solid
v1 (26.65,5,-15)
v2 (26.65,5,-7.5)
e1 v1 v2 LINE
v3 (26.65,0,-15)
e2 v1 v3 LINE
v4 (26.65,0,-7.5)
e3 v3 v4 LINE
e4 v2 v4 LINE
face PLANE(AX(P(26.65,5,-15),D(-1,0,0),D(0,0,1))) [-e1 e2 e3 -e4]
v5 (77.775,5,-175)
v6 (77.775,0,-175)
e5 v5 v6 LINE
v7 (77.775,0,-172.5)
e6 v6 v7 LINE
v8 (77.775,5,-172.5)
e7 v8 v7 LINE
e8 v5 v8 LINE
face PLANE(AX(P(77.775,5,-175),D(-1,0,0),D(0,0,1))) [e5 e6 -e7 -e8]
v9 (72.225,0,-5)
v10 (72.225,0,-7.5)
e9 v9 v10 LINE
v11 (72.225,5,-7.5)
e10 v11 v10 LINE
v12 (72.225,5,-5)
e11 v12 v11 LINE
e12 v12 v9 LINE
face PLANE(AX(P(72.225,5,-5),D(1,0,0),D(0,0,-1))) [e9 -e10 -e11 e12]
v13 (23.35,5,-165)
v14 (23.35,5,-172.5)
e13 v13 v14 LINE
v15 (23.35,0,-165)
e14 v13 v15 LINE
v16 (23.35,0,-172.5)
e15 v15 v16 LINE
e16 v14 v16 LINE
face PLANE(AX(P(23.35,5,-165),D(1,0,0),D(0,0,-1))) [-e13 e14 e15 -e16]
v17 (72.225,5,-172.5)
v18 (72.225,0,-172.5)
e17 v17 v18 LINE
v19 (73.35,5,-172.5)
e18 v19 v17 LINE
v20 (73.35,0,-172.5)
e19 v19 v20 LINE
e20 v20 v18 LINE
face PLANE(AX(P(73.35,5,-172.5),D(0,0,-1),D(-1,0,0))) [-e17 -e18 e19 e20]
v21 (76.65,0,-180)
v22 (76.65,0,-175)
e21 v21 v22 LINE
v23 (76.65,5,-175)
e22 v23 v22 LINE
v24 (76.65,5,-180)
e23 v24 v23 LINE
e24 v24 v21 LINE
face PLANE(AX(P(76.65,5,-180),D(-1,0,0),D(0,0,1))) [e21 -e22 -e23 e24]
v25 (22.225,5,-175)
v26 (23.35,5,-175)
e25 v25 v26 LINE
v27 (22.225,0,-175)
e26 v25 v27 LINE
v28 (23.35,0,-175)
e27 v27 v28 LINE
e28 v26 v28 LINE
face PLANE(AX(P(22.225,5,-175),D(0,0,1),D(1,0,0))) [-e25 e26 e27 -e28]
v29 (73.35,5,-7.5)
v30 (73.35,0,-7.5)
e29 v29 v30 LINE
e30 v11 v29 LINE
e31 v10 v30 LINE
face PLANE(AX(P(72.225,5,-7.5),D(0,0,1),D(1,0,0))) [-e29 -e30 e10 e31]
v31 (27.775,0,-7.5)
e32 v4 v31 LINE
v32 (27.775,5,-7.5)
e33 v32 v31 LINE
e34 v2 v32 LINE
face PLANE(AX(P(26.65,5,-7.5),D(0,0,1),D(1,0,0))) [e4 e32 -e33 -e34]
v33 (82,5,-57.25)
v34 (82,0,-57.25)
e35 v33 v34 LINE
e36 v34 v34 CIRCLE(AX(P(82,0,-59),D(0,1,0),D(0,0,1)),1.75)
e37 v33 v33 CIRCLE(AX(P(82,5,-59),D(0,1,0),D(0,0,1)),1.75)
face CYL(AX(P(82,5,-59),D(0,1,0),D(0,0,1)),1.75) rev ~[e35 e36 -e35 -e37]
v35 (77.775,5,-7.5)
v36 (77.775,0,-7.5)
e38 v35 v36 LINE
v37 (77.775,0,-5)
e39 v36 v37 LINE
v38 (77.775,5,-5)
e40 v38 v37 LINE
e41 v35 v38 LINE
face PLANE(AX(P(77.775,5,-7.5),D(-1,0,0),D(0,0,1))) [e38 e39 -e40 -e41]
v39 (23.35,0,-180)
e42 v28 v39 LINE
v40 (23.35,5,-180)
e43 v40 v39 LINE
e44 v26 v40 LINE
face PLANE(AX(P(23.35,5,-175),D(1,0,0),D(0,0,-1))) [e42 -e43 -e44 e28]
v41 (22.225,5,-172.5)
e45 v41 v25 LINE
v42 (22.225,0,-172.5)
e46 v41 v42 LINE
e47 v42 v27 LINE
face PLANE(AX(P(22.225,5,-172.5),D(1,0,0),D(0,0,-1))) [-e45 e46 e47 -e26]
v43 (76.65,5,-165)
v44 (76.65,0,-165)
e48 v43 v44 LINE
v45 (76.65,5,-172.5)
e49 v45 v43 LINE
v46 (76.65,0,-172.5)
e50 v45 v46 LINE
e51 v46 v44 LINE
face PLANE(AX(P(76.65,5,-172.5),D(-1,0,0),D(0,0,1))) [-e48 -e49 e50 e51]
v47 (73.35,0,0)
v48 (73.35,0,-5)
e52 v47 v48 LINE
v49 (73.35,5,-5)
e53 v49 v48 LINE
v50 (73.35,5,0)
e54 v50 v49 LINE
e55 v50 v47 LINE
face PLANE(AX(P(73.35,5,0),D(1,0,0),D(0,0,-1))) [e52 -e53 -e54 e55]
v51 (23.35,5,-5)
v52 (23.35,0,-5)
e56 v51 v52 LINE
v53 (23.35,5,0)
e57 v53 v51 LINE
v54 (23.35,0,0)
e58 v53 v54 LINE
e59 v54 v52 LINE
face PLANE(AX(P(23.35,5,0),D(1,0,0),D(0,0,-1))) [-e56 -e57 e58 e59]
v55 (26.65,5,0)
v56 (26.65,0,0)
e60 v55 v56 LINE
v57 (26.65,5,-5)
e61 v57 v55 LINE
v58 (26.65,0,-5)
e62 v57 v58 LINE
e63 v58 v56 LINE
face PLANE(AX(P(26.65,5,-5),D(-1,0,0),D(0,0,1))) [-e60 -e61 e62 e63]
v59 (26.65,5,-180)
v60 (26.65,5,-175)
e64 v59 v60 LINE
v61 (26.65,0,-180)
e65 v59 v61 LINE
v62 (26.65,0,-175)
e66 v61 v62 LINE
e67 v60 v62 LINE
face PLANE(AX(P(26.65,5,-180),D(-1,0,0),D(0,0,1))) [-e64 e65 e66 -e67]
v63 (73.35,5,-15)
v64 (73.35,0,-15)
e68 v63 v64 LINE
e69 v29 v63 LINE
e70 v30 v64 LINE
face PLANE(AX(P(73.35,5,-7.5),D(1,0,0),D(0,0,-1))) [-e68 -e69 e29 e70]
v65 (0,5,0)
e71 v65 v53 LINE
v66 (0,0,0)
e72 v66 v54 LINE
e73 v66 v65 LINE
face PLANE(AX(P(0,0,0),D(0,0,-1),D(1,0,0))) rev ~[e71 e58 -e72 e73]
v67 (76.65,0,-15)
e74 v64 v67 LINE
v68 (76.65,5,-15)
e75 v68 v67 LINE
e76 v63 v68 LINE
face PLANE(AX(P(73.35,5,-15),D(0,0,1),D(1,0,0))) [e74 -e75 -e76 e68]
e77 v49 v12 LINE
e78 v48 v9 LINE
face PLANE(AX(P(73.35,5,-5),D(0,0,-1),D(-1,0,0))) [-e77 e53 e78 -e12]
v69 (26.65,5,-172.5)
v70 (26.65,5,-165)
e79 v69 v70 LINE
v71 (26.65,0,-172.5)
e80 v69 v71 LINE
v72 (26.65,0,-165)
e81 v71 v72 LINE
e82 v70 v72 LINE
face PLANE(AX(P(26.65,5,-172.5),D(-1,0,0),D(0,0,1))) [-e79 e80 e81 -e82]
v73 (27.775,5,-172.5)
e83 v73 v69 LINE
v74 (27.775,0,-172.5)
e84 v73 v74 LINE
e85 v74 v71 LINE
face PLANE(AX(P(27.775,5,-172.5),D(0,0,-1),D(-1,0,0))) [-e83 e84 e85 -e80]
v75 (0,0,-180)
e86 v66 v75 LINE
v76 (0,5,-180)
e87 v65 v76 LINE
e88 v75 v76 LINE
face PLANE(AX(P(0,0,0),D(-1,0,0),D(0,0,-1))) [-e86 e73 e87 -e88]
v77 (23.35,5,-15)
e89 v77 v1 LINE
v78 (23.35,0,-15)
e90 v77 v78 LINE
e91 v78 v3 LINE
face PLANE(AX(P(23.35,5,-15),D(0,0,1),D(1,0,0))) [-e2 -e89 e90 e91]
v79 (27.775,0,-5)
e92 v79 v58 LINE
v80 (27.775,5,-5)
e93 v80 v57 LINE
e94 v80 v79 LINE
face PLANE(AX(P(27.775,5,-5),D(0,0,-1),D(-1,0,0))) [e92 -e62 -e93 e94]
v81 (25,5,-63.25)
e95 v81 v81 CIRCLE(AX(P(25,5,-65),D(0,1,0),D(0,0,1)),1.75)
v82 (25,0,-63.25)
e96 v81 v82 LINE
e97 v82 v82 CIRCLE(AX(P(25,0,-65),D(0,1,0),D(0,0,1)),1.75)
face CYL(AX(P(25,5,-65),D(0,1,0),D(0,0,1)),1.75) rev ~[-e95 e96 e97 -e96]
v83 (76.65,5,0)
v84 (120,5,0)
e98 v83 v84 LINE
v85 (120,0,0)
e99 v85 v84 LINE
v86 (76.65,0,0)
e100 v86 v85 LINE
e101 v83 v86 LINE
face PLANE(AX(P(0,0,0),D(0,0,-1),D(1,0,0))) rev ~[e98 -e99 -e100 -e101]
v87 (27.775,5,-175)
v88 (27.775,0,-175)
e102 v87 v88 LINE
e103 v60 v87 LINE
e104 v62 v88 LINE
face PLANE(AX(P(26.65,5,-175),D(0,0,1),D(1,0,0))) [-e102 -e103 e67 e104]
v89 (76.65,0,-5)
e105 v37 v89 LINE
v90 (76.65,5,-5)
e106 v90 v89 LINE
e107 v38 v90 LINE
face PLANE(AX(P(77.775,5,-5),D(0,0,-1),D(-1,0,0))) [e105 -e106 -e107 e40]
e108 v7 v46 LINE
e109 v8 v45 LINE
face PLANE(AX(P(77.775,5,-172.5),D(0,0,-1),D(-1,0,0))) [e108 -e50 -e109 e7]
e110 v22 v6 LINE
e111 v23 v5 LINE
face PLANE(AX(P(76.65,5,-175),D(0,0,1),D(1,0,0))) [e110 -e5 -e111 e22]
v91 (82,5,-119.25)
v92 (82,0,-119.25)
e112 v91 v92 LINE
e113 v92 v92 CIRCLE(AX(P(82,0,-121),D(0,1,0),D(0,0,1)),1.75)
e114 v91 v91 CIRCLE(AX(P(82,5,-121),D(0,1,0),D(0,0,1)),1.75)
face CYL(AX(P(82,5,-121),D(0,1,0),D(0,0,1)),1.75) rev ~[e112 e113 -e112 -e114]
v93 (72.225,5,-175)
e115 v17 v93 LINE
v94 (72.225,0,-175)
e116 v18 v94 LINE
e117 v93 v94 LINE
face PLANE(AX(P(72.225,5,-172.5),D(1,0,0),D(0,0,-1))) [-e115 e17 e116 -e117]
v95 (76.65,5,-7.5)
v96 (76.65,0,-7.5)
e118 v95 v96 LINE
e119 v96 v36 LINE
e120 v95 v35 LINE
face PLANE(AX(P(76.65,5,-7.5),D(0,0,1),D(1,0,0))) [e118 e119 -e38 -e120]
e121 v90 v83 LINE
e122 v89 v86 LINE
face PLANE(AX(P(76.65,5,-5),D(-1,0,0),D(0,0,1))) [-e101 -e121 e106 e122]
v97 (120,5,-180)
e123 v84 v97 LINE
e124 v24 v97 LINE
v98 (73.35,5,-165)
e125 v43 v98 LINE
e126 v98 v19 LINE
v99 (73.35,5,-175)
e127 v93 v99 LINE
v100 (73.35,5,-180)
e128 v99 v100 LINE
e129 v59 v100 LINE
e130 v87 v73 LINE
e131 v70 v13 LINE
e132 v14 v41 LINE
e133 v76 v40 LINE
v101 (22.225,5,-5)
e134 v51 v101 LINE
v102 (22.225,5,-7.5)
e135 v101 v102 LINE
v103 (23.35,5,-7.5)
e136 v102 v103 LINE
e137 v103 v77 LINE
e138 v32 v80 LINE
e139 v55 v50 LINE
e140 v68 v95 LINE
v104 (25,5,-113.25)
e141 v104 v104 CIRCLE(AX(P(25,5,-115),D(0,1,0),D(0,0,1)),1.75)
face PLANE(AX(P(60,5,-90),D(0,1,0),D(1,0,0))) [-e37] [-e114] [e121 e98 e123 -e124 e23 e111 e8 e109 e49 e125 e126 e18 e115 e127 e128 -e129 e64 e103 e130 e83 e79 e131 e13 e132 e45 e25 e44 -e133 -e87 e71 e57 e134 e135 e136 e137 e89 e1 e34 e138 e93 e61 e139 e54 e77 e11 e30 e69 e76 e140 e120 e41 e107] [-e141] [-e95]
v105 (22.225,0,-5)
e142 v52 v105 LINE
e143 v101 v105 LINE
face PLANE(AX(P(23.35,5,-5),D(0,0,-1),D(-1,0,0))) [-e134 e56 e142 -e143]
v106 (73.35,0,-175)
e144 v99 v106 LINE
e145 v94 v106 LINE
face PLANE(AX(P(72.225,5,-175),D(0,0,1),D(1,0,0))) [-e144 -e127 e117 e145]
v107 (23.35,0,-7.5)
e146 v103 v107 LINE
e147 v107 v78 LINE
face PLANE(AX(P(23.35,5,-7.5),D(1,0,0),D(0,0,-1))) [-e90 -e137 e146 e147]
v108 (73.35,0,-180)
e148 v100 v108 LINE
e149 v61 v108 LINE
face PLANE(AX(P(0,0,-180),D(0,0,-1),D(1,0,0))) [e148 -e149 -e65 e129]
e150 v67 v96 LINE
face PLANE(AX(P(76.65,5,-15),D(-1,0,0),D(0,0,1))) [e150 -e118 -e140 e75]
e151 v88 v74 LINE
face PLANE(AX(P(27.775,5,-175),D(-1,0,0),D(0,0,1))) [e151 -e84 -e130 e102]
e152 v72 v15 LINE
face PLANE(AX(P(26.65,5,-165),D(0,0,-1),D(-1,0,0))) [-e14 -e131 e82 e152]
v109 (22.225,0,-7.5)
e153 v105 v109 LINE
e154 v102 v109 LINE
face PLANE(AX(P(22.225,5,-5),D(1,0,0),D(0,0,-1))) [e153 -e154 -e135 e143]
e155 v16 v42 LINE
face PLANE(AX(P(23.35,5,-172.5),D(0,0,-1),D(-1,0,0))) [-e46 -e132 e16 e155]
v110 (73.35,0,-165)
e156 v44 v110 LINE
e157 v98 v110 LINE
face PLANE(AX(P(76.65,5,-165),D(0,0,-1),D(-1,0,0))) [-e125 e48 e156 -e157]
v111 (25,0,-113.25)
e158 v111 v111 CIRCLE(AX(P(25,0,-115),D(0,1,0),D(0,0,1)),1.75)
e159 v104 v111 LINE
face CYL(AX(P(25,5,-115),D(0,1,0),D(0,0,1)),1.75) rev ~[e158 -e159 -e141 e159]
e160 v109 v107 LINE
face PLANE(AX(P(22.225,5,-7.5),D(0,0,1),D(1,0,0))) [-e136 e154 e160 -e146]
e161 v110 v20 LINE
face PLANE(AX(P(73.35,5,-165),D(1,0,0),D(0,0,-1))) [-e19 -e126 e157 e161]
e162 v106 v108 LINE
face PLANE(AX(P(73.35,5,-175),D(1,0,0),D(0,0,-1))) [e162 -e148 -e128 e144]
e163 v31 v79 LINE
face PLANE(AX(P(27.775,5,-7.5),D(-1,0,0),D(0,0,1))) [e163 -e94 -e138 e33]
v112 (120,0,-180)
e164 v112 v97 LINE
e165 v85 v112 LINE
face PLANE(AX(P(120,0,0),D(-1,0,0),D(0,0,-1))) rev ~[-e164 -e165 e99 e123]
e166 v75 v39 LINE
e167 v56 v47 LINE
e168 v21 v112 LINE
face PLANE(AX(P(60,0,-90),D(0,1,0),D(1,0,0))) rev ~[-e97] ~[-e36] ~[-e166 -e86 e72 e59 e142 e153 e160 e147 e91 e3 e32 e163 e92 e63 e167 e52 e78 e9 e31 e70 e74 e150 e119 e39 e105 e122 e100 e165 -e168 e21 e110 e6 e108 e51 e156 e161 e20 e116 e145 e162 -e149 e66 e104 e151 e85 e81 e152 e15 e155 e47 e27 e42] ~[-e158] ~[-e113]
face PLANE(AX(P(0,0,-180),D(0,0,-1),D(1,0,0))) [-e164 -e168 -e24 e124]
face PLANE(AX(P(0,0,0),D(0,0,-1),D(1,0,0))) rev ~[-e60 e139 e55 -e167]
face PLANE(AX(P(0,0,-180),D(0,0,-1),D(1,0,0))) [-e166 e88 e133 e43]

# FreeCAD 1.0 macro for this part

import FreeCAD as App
import Part
import Sketcher

V = App.Vector

doc = App.newDocument("Part")
body = doc.addObject("PartDesign::Body", "Body")

sketch1 = body.newObject("Sketcher::SketchObject", "Sketch")
sketch1.AttachmentSupport = (doc.getObject("XZ_Plane"), [""])
sketch1.MapMode = "FlatFace"
sketch1.addGeometry([
    Part.LineSegment(V(0, -180, 0), V(0, 0, 0)),
    Part.LineSegment(V(0, 0, 0), V(120, 0, 0)),
    Part.LineSegment(V(120, 0, 0), V(120, -180, 0)),
    Part.LineSegment(V(120, -180, 0), V(0, -180, 0)),
], False)
sketch1.addConstraint([
    Sketcher.Constraint("Coincident", 0, 2, 1, 1),
    Sketcher.Constraint("Coincident", 1, 2, 2, 1),
    Sketcher.Constraint("Coincident", 2, 2, 3, 1),
    Sketcher.Constraint("Coincident", 3, 2, 0, 1),
    Sketcher.Constraint("Vertical", 0),
    Sketcher.Constraint("Horizontal", 1),
    Sketcher.Constraint("Vertical", 2),
    Sketcher.Constraint("Horizontal", 3),
    Sketcher.Constraint("Coincident", 0, 2, -1, 1),
    Sketcher.Constraint("DistanceX", 1, 1, 1, 2, 120.0),
    Sketcher.Constraint("DistanceY", 0, 1, 0, 2, 180.0),
])
pad1 = body.newObject("PartDesign::Pad", "Pad")
pad1.Profile = sketch1
pad1.Length = 5
pad1.Reversed = True

sketch2 = body.newObject("Sketcher::SketchObject", "Sketch001")
sketch2.AttachmentSupport = (doc.getObject("XZ_Plane"), [""])
sketch2.MapMode = "FlatFace"
sketch2.AttachmentOffset = App.Placement(V(0, 0, -5), App.Rotation())
sketch2.addGeometry([
    Part.LineSegment(V(26.6, -15, 0), V(23.4, -15, 0)),
    Part.LineSegment(V(23.4, -15, 0), V(23.4, -7.5, 0)),
    Part.LineSegment(V(23.4, -7.5, 0), V(22.2, -7.5, 0)),
    Part.LineSegment(V(22.2, -7.5, 0), V(22.2, -5, 0)),
    Part.LineSegment(V(22.2, -5, 0), V(23.4, -5, 0)),
    Part.LineSegment(V(23.4, -5, 0), V(23.4, 0, 0)),
    Part.LineSegment(V(23.4, 0, 0), V(26.6, 0, 0)),
    Part.LineSegment(V(26.6, 0, 0), V(26.6, -5, 0)),
    Part.LineSegment(V(26.6, -5, 0), V(27.8, -5, 0)),
    Part.LineSegment(V(27.8, -5, 0), V(27.8, -7.5, 0)),
    Part.LineSegment(V(27.8, -7.5, 0), V(26.6, -7.5, 0)),
    Part.LineSegment(V(26.6, -7.5, 0), V(26.6, -15, 0)),
    Part.LineSegment(V(76.7, -7.5, 0), V(76.7, -15, 0)),
    Part.LineSegment(V(76.7, -15, 0), V(73.3, -15, 0)),
    Part.LineSegment(V(73.3, -15, 0), V(73.3, -7.5, 0)),
    Part.LineSegment(V(73.3, -7.5, 0), V(72.2, -7.5, 0)),
    Part.LineSegment(V(72.2, -7.5, 0), V(72.2, -5, 0)),
    Part.LineSegment(V(72.2, -5, 0), V(73.3, -5, 0)),
    Part.LineSegment(V(73.3, -5, 0), V(73.3, 0, 0)),
    Part.LineSegment(V(73.3, 0, 0), V(76.7, 0, 0)),
    Part.LineSegment(V(76.7, 0, 0), V(76.7, -5, 0)),
    Part.LineSegment(V(76.7, -5, 0), V(77.8, -5, 0)),
    Part.LineSegment(V(77.8, -5, 0), V(77.8, -7.5, 0)),
    Part.LineSegment(V(77.8, -7.5, 0), V(76.7, -7.5, 0)),
    Part.LineSegment(V(73.3, -165, 0), V(76.7, -165, 0)),
    Part.LineSegment(V(76.7, -165, 0), V(76.7, -172.5, 0)),
    Part.LineSegment(V(76.7, -172.5, 0), V(77.8, -172.5, 0)),
    Part.LineSegment(V(77.8, -172.5, 0), V(77.8, -175, 0)),
    Part.LineSegment(V(77.8, -175, 0), V(76.7, -175, 0)),
    Part.LineSegment(V(76.7, -175, 0), V(76.7, -180, 0)),
    Part.LineSegment(V(76.7, -180, 0), V(73.3, -180, 0)),
    Part.LineSegment(V(73.3, -180, 0), V(73.3, -175, 0)),
    Part.LineSegment(V(73.3, -175, 0), V(72.2, -175, 0)),
    Part.LineSegment(V(72.2, -175, 0), V(72.2, -172.5, 0)),
    Part.LineSegment(V(72.2, -172.5, 0), V(73.3, -172.5, 0)),
    Part.LineSegment(V(73.3, -172.5, 0), V(73.3, -165, 0)),
    Part.LineSegment(V(23.4, -172.5, 0), V(23.4, -165, 0)),
    Part.LineSegment(V(23.4, -165, 0), V(26.6, -165, 0)),
    Part.LineSegment(V(26.6, -165, 0), V(26.6, -172.5, 0)),
    Part.LineSegment(V(26.6, -172.5, 0), V(27.8, -172.5, 0)),
    Part.LineSegment(V(27.8, -172.5, 0), V(27.8, -175, 0)),
    Part.LineSegment(V(27.8, -175, 0), V(26.6, -175, 0)),
    Part.LineSegment(V(26.6, -175, 0), V(26.6, -180, 0)),
    Part.LineSegment(V(26.6, -180, 0), V(23.4, -180, 0)),
    Part.LineSegment(V(23.4, -180, 0), V(23.4, -175, 0)),
    Part.LineSegment(V(23.4, -175, 0), V(22.2, -175, 0)),
    Part.LineSegment(V(22.2, -175, 0), V(22.2, -172.5, 0)),
    Part.LineSegment(V(22.2, -172.5, 0), V(23.4, -172.5, 0)),
], False)
sketch2.addConstraint([
    Sketcher.Constraint("Coincident", 0, 2, 1, 1),
    Sketcher.Constraint("Coincident", 1, 2, 2, 1),
    Sketcher.Constraint("Coincident", 2, 2, 3, 1),
    Sketcher.Constraint("Coincident", 3, 2, 4, 1),
    Sketcher.Constraint("Coincident", 4, 2, 5, 1),
    Sketcher.Constraint("Coincident", 5, 2, 6, 1),
    Sketcher.Constraint("Coincident", 6, 2, 7, 1),
    Sketcher.Constraint("Coincident", 7, 2, 8, 1),
    Sketcher.Constraint("Coincident", 8, 2, 9, 1),
    Sketcher.Constraint("Coincident", 9, 2, 10, 1),
    Sketcher.Constraint("Coincident", 10, 2, 11, 1),
    Sketcher.Constraint("Coincident", 11, 2, 0, 1),
    Sketcher.Constraint("Coincident", 12, 2, 13, 1),
    Sketcher.Constraint("Coincident", 13, 2, 14, 1),
    Sketcher.Constraint("Coincident", 14, 2, 15, 1),
    Sketcher.Constraint("Coincident", 15, 2, 16, 1),
    Sketcher.Constraint("Coincident", 16, 2, 17, 1),
    Sketcher.Constraint("Coincident", 17, 2, 18, 1),
    Sketcher.Constraint("Coincident", 18, 2, 19, 1),
    Sketcher.Constraint("Coincident", 19, 2, 20, 1),
    Sketcher.Constraint("Coincident", 20, 2, 21, 1),
    Sketcher.Constraint("Coincident", 21, 2, 22, 1),
    Sketcher.Constraint("Coincident", 22, 2, 23, 1),
    Sketcher.Constraint("Coincident", 23, 2, 12, 1),
    Sketcher.Constraint("Coincident", 24, 2, 25, 1),
    Sketcher.Constraint("Coincident", 25, 2, 26, 1),
    Sketcher.Constraint("Coincident", 26, 2, 27, 1),
    Sketcher.Constraint("Coincident", 27, 2, 28, 1),
    Sketcher.Constraint("Coincident", 28, 2, 29, 1),
    Sketcher.Constraint("Coincident", 29, 2, 30, 1),
    Sketcher.Constraint("Coincident", 30, 2, 31, 1),
    Sketcher.Constraint("Coincident", 31, 2, 32, 1),
    Sketcher.Constraint("Coincident", 32, 2, 33, 1),
    Sketcher.Constraint("Coincident", 33, 2, 34, 1),
    Sketcher.Constraint("Coincident", 34, 2, 35, 1),
    Sketcher.Constraint("Coincident", 35, 2, 24, 1),
    Sketcher.Constraint("Coincident", 36, 2, 37, 1),
    Sketcher.Constraint("Coincident", 37, 2, 38, 1),
    Sketcher.Constraint("Coincident", 38, 2, 39, 1),
    Sketcher.Constraint("Coincident", 39, 2, 40, 1),
    Sketcher.Constraint("Coincident", 40, 2, 41, 1),
    Sketcher.Constraint("Coincident", 41, 2, 42, 1),
    Sketcher.Constraint("Coincident", 42, 2, 43, 1),
    Sketcher.Constraint("Coincident", 43, 2, 44, 1),
    Sketcher.Constraint("Coincident", 44, 2, 45, 1),
    Sketcher.Constraint("Coincident", 45, 2, 46, 1),
    Sketcher.Constraint("Coincident", 46, 2, 47, 1),
    Sketcher.Constraint("Coincident", 47, 2, 36, 1),
    Sketcher.Constraint("Horizontal", 0),
    Sketcher.Constraint("Vertical", 1),
    Sketcher.Constraint("Horizontal", 2),
    Sketcher.Constraint("Vertical", 3),
    Sketcher.Constraint("Horizontal", 4),
    Sketcher.Constraint("Vertical", 5),
    Sketcher.Constraint("Horizontal", 6),
    Sketcher.Constraint("Vertical", 7),
    Sketcher.Constraint("Horizontal", 8),
    Sketcher.Constraint("Vertical", 9),
    Sketcher.Constraint("Horizontal", 10),
    Sketcher.Constraint("Vertical", 11),
    Sketcher.Constraint("Vertical", 12),
    Sketcher.Constraint("Horizontal", 13),
    Sketcher.Constraint("Vertical", 14),
    Sketcher.Constraint("Horizontal", 15),
    Sketcher.Constraint("Vertical", 16),
    Sketcher.Constraint("Horizontal", 17),
    Sketcher.Constraint("Vertical", 18),
    Sketcher.Constraint("Horizontal", 19),
    Sketcher.Constraint("Vertical", 20),
    Sketcher.Constraint("Horizontal", 21),
    Sketcher.Constraint("Vertical", 22),
    Sketcher.Constraint("Horizontal", 23),
    Sketcher.Constraint("Horizontal", 24),
    Sketcher.Constraint("Vertical", 25),
    Sketcher.Constraint("Horizontal", 26),
    Sketcher.Constraint("Vertical", 27),
    Sketcher.Constraint("Horizontal", 28),
    Sketcher.Constraint("Vertical", 29),
    Sketcher.Constraint("Horizontal", 30),
    Sketcher.Constraint("Vertical", 31),
    Sketcher.Constraint("Horizontal", 32),
    Sketcher.Constraint("Vertical", 33),
    Sketcher.Constraint("Horizontal", 34),
    Sketcher.Constraint("Vertical", 35),
    Sketcher.Constraint("Vertical", 36),
    Sketcher.Constraint("Horizontal", 37),
    Sketcher.Constraint("Vertical", 38),
    Sketcher.Constraint("Horizontal", 39),
    Sketcher.Constraint("Vertical", 40),
    Sketcher.Constraint("Horizontal", 41),
    Sketcher.Constraint("Vertical", 42),
    Sketcher.Constraint("Horizontal", 43),
    Sketcher.Constraint("Vertical", 44),
    Sketcher.Constraint("Horizontal", 45),
    Sketcher.Constraint("Vertical", 46),
    Sketcher.Constraint("Horizontal", 47),
    Sketcher.Constraint("PointOnObject", 5, 2, -1),
    Sketcher.Constraint("PointOnObject", 18, 2, -1),
    Sketcher.Constraint("Horizontal", 4, 2, 7, 2),
    Sketcher.Constraint("Horizontal", 2, 2, 9, 2),
    Sketcher.Constraint("Horizontal", 11, 2, 12, 2),
    Sketcher.Constraint("Horizontal", 10, 2, 14, 2),
    Sketcher.Constraint("Horizontal", 8, 2, 16, 2),
    Sketcher.Constraint("Horizontal", 17, 2, 20, 2),
    Sketcher.Constraint("Horizontal", 15, 2, 22, 2),
    Sketcher.Constraint("Horizontal", 28, 2, 31, 2),
    Sketcher.Constraint("Horizontal", 26, 2, 33, 2),
    Sketcher.Constraint("Horizontal", 35, 2, 36, 2),
    Sketcher.Constraint("Horizontal", 34, 2, 38, 2),
    Sketcher.Constraint("Horizontal", 32, 2, 40, 2),
    Sketcher.Constraint("Horizontal", 30, 2, 42, 2),
    Sketcher.Constraint("Horizontal", 41, 2, 44, 2),
    Sketcher.Constraint("Horizontal", 39, 2, 46, 2),
    Sketcher.Constraint("Vertical", 1, 2, 4, 2),
    Sketcher.Constraint("Vertical", 7, 2, 10, 2),
    Sketcher.Constraint("Vertical", 14, 2, 17, 2),
    Sketcher.Constraint("Vertical", 12, 2, 19, 2),
    Sketcher.Constraint("Vertical", 23, 2, 24, 2),
    Sketcher.Constraint("Vertical", 22, 2, 26, 2),
    Sketcher.Constraint("Vertical", 25, 2, 28, 2),
    Sketcher.Constraint("Vertical", 18, 2, 30, 2),
    Sketcher.Constraint("Vertical", 16, 2, 32, 2),
    Sketcher.Constraint("Vertical", 31, 2, 34, 2),
    Sketcher.Constraint("Vertical", 5, 2, 36, 2),
    Sketcher.Constraint("Vertical", 11, 2, 37, 2),
    Sketcher.Constraint("Vertical", 9, 2, 39, 2),
    Sketcher.Constraint("Vertical", 38, 2, 41, 2),
    Sketcher.Constraint("Vertical", 36, 2, 43, 2),
    Sketcher.Constraint("Vertical", 3, 2, 45, 2),
    Sketcher.Constraint("Equal", 4, 8),
    Sketcher.Constraint("Equal", 6, 13),
    Sketcher.Constraint("Equal", 10, 15),
    Sketcher.Constraint("Equal", 17, 21),
    Sketcher.Constraint("Equal", 14, 25),
    Sketcher.Constraint("Equal", 22, 27),
    Sketcher.Constraint("Equal", 20, 29),
    Sketcher.Constraint("DistanceY", 5, 1, 5, 2, 5.0),
    Sketcher.Constraint("DistanceX", 0, 2, 0, 1, 3.3),
    Sketcher.Constraint("DistanceY", 1, 1, 1, 2, 7.5),
    Sketcher.Constraint("DistanceY", 3, 1, 3, 2, 2.5),
    Sketcher.Constraint("DistanceY", 24, 2, -1, 1, 165.0),
    Sketcher.Constraint("DistanceX", 11, 2, 12, 2, 50.0),
    Sketcher.Constraint("DistanceX", 2, 2, 2, 1, 1.125),
    Sketcher.Constraint("DistanceX", -1, 1, 0, 2, 23.35),
])
pocket1 = body.newObject("PartDesign::Pocket", "Pocket")
pocket1.Profile = sketch2
pocket1.Length = 5
pocket1.Reversed = True

sketch3 = body.newObject("Sketcher::SketchObject", "Sketch002")
sketch3.AttachmentSupport = (doc.getObject("XZ_Plane"), [""])
sketch3.MapMode = "FlatFace"
sketch3.AttachmentOffset = App.Placement(V(0, 0, -5), App.Rotation())
sketch3.addGeometry([
    Part.Circle(V(25, -65, 0), V(0, 0, 1), 1.8),
    Part.Circle(V(82, -59, 0), V(0, 0, 1), 1.8),
    Part.Circle(V(25, -115, 0), V(0, 0, 1), 1.8),
    Part.Circle(V(82, -121, 0), V(0, 0, 1), 1.8),
], False)
sketch3.addConstraint([
    Sketcher.Constraint("Equal", 0, 1),
    Sketcher.Constraint("Equal", 1, 2),
    Sketcher.Constraint("Equal", 2, 3),
    Sketcher.Constraint("Vertical", 0, 3, 2, 3),
    Sketcher.Constraint("Vertical", 1, 3, 3, 3),
    Sketcher.Constraint("Diameter", 0, 3.5),
    Sketcher.Constraint("DistanceX", -1, 1, 0, 3, 25.0),
    Sketcher.Constraint("DistanceY", 0, 3, -1, 1, 65.0),
    Sketcher.Constraint("DistanceX", -1, 1, 1, 3, 82.0),
    Sketcher.Constraint("DistanceY", 1, 3, -1, 1, 59.0),
    Sketcher.Constraint("DistanceY", 2, 3, -1, 1, 115.0),
    Sketcher.Constraint("DistanceY", 3, 3, -1, 1, 121.0),
])
pocket2 = body.newObject("PartDesign::Pocket", "Pocket001")
pocket2.Profile = sketch3
pocket2.Length = 5
pocket2.Reversed = True

doc.recompute()
